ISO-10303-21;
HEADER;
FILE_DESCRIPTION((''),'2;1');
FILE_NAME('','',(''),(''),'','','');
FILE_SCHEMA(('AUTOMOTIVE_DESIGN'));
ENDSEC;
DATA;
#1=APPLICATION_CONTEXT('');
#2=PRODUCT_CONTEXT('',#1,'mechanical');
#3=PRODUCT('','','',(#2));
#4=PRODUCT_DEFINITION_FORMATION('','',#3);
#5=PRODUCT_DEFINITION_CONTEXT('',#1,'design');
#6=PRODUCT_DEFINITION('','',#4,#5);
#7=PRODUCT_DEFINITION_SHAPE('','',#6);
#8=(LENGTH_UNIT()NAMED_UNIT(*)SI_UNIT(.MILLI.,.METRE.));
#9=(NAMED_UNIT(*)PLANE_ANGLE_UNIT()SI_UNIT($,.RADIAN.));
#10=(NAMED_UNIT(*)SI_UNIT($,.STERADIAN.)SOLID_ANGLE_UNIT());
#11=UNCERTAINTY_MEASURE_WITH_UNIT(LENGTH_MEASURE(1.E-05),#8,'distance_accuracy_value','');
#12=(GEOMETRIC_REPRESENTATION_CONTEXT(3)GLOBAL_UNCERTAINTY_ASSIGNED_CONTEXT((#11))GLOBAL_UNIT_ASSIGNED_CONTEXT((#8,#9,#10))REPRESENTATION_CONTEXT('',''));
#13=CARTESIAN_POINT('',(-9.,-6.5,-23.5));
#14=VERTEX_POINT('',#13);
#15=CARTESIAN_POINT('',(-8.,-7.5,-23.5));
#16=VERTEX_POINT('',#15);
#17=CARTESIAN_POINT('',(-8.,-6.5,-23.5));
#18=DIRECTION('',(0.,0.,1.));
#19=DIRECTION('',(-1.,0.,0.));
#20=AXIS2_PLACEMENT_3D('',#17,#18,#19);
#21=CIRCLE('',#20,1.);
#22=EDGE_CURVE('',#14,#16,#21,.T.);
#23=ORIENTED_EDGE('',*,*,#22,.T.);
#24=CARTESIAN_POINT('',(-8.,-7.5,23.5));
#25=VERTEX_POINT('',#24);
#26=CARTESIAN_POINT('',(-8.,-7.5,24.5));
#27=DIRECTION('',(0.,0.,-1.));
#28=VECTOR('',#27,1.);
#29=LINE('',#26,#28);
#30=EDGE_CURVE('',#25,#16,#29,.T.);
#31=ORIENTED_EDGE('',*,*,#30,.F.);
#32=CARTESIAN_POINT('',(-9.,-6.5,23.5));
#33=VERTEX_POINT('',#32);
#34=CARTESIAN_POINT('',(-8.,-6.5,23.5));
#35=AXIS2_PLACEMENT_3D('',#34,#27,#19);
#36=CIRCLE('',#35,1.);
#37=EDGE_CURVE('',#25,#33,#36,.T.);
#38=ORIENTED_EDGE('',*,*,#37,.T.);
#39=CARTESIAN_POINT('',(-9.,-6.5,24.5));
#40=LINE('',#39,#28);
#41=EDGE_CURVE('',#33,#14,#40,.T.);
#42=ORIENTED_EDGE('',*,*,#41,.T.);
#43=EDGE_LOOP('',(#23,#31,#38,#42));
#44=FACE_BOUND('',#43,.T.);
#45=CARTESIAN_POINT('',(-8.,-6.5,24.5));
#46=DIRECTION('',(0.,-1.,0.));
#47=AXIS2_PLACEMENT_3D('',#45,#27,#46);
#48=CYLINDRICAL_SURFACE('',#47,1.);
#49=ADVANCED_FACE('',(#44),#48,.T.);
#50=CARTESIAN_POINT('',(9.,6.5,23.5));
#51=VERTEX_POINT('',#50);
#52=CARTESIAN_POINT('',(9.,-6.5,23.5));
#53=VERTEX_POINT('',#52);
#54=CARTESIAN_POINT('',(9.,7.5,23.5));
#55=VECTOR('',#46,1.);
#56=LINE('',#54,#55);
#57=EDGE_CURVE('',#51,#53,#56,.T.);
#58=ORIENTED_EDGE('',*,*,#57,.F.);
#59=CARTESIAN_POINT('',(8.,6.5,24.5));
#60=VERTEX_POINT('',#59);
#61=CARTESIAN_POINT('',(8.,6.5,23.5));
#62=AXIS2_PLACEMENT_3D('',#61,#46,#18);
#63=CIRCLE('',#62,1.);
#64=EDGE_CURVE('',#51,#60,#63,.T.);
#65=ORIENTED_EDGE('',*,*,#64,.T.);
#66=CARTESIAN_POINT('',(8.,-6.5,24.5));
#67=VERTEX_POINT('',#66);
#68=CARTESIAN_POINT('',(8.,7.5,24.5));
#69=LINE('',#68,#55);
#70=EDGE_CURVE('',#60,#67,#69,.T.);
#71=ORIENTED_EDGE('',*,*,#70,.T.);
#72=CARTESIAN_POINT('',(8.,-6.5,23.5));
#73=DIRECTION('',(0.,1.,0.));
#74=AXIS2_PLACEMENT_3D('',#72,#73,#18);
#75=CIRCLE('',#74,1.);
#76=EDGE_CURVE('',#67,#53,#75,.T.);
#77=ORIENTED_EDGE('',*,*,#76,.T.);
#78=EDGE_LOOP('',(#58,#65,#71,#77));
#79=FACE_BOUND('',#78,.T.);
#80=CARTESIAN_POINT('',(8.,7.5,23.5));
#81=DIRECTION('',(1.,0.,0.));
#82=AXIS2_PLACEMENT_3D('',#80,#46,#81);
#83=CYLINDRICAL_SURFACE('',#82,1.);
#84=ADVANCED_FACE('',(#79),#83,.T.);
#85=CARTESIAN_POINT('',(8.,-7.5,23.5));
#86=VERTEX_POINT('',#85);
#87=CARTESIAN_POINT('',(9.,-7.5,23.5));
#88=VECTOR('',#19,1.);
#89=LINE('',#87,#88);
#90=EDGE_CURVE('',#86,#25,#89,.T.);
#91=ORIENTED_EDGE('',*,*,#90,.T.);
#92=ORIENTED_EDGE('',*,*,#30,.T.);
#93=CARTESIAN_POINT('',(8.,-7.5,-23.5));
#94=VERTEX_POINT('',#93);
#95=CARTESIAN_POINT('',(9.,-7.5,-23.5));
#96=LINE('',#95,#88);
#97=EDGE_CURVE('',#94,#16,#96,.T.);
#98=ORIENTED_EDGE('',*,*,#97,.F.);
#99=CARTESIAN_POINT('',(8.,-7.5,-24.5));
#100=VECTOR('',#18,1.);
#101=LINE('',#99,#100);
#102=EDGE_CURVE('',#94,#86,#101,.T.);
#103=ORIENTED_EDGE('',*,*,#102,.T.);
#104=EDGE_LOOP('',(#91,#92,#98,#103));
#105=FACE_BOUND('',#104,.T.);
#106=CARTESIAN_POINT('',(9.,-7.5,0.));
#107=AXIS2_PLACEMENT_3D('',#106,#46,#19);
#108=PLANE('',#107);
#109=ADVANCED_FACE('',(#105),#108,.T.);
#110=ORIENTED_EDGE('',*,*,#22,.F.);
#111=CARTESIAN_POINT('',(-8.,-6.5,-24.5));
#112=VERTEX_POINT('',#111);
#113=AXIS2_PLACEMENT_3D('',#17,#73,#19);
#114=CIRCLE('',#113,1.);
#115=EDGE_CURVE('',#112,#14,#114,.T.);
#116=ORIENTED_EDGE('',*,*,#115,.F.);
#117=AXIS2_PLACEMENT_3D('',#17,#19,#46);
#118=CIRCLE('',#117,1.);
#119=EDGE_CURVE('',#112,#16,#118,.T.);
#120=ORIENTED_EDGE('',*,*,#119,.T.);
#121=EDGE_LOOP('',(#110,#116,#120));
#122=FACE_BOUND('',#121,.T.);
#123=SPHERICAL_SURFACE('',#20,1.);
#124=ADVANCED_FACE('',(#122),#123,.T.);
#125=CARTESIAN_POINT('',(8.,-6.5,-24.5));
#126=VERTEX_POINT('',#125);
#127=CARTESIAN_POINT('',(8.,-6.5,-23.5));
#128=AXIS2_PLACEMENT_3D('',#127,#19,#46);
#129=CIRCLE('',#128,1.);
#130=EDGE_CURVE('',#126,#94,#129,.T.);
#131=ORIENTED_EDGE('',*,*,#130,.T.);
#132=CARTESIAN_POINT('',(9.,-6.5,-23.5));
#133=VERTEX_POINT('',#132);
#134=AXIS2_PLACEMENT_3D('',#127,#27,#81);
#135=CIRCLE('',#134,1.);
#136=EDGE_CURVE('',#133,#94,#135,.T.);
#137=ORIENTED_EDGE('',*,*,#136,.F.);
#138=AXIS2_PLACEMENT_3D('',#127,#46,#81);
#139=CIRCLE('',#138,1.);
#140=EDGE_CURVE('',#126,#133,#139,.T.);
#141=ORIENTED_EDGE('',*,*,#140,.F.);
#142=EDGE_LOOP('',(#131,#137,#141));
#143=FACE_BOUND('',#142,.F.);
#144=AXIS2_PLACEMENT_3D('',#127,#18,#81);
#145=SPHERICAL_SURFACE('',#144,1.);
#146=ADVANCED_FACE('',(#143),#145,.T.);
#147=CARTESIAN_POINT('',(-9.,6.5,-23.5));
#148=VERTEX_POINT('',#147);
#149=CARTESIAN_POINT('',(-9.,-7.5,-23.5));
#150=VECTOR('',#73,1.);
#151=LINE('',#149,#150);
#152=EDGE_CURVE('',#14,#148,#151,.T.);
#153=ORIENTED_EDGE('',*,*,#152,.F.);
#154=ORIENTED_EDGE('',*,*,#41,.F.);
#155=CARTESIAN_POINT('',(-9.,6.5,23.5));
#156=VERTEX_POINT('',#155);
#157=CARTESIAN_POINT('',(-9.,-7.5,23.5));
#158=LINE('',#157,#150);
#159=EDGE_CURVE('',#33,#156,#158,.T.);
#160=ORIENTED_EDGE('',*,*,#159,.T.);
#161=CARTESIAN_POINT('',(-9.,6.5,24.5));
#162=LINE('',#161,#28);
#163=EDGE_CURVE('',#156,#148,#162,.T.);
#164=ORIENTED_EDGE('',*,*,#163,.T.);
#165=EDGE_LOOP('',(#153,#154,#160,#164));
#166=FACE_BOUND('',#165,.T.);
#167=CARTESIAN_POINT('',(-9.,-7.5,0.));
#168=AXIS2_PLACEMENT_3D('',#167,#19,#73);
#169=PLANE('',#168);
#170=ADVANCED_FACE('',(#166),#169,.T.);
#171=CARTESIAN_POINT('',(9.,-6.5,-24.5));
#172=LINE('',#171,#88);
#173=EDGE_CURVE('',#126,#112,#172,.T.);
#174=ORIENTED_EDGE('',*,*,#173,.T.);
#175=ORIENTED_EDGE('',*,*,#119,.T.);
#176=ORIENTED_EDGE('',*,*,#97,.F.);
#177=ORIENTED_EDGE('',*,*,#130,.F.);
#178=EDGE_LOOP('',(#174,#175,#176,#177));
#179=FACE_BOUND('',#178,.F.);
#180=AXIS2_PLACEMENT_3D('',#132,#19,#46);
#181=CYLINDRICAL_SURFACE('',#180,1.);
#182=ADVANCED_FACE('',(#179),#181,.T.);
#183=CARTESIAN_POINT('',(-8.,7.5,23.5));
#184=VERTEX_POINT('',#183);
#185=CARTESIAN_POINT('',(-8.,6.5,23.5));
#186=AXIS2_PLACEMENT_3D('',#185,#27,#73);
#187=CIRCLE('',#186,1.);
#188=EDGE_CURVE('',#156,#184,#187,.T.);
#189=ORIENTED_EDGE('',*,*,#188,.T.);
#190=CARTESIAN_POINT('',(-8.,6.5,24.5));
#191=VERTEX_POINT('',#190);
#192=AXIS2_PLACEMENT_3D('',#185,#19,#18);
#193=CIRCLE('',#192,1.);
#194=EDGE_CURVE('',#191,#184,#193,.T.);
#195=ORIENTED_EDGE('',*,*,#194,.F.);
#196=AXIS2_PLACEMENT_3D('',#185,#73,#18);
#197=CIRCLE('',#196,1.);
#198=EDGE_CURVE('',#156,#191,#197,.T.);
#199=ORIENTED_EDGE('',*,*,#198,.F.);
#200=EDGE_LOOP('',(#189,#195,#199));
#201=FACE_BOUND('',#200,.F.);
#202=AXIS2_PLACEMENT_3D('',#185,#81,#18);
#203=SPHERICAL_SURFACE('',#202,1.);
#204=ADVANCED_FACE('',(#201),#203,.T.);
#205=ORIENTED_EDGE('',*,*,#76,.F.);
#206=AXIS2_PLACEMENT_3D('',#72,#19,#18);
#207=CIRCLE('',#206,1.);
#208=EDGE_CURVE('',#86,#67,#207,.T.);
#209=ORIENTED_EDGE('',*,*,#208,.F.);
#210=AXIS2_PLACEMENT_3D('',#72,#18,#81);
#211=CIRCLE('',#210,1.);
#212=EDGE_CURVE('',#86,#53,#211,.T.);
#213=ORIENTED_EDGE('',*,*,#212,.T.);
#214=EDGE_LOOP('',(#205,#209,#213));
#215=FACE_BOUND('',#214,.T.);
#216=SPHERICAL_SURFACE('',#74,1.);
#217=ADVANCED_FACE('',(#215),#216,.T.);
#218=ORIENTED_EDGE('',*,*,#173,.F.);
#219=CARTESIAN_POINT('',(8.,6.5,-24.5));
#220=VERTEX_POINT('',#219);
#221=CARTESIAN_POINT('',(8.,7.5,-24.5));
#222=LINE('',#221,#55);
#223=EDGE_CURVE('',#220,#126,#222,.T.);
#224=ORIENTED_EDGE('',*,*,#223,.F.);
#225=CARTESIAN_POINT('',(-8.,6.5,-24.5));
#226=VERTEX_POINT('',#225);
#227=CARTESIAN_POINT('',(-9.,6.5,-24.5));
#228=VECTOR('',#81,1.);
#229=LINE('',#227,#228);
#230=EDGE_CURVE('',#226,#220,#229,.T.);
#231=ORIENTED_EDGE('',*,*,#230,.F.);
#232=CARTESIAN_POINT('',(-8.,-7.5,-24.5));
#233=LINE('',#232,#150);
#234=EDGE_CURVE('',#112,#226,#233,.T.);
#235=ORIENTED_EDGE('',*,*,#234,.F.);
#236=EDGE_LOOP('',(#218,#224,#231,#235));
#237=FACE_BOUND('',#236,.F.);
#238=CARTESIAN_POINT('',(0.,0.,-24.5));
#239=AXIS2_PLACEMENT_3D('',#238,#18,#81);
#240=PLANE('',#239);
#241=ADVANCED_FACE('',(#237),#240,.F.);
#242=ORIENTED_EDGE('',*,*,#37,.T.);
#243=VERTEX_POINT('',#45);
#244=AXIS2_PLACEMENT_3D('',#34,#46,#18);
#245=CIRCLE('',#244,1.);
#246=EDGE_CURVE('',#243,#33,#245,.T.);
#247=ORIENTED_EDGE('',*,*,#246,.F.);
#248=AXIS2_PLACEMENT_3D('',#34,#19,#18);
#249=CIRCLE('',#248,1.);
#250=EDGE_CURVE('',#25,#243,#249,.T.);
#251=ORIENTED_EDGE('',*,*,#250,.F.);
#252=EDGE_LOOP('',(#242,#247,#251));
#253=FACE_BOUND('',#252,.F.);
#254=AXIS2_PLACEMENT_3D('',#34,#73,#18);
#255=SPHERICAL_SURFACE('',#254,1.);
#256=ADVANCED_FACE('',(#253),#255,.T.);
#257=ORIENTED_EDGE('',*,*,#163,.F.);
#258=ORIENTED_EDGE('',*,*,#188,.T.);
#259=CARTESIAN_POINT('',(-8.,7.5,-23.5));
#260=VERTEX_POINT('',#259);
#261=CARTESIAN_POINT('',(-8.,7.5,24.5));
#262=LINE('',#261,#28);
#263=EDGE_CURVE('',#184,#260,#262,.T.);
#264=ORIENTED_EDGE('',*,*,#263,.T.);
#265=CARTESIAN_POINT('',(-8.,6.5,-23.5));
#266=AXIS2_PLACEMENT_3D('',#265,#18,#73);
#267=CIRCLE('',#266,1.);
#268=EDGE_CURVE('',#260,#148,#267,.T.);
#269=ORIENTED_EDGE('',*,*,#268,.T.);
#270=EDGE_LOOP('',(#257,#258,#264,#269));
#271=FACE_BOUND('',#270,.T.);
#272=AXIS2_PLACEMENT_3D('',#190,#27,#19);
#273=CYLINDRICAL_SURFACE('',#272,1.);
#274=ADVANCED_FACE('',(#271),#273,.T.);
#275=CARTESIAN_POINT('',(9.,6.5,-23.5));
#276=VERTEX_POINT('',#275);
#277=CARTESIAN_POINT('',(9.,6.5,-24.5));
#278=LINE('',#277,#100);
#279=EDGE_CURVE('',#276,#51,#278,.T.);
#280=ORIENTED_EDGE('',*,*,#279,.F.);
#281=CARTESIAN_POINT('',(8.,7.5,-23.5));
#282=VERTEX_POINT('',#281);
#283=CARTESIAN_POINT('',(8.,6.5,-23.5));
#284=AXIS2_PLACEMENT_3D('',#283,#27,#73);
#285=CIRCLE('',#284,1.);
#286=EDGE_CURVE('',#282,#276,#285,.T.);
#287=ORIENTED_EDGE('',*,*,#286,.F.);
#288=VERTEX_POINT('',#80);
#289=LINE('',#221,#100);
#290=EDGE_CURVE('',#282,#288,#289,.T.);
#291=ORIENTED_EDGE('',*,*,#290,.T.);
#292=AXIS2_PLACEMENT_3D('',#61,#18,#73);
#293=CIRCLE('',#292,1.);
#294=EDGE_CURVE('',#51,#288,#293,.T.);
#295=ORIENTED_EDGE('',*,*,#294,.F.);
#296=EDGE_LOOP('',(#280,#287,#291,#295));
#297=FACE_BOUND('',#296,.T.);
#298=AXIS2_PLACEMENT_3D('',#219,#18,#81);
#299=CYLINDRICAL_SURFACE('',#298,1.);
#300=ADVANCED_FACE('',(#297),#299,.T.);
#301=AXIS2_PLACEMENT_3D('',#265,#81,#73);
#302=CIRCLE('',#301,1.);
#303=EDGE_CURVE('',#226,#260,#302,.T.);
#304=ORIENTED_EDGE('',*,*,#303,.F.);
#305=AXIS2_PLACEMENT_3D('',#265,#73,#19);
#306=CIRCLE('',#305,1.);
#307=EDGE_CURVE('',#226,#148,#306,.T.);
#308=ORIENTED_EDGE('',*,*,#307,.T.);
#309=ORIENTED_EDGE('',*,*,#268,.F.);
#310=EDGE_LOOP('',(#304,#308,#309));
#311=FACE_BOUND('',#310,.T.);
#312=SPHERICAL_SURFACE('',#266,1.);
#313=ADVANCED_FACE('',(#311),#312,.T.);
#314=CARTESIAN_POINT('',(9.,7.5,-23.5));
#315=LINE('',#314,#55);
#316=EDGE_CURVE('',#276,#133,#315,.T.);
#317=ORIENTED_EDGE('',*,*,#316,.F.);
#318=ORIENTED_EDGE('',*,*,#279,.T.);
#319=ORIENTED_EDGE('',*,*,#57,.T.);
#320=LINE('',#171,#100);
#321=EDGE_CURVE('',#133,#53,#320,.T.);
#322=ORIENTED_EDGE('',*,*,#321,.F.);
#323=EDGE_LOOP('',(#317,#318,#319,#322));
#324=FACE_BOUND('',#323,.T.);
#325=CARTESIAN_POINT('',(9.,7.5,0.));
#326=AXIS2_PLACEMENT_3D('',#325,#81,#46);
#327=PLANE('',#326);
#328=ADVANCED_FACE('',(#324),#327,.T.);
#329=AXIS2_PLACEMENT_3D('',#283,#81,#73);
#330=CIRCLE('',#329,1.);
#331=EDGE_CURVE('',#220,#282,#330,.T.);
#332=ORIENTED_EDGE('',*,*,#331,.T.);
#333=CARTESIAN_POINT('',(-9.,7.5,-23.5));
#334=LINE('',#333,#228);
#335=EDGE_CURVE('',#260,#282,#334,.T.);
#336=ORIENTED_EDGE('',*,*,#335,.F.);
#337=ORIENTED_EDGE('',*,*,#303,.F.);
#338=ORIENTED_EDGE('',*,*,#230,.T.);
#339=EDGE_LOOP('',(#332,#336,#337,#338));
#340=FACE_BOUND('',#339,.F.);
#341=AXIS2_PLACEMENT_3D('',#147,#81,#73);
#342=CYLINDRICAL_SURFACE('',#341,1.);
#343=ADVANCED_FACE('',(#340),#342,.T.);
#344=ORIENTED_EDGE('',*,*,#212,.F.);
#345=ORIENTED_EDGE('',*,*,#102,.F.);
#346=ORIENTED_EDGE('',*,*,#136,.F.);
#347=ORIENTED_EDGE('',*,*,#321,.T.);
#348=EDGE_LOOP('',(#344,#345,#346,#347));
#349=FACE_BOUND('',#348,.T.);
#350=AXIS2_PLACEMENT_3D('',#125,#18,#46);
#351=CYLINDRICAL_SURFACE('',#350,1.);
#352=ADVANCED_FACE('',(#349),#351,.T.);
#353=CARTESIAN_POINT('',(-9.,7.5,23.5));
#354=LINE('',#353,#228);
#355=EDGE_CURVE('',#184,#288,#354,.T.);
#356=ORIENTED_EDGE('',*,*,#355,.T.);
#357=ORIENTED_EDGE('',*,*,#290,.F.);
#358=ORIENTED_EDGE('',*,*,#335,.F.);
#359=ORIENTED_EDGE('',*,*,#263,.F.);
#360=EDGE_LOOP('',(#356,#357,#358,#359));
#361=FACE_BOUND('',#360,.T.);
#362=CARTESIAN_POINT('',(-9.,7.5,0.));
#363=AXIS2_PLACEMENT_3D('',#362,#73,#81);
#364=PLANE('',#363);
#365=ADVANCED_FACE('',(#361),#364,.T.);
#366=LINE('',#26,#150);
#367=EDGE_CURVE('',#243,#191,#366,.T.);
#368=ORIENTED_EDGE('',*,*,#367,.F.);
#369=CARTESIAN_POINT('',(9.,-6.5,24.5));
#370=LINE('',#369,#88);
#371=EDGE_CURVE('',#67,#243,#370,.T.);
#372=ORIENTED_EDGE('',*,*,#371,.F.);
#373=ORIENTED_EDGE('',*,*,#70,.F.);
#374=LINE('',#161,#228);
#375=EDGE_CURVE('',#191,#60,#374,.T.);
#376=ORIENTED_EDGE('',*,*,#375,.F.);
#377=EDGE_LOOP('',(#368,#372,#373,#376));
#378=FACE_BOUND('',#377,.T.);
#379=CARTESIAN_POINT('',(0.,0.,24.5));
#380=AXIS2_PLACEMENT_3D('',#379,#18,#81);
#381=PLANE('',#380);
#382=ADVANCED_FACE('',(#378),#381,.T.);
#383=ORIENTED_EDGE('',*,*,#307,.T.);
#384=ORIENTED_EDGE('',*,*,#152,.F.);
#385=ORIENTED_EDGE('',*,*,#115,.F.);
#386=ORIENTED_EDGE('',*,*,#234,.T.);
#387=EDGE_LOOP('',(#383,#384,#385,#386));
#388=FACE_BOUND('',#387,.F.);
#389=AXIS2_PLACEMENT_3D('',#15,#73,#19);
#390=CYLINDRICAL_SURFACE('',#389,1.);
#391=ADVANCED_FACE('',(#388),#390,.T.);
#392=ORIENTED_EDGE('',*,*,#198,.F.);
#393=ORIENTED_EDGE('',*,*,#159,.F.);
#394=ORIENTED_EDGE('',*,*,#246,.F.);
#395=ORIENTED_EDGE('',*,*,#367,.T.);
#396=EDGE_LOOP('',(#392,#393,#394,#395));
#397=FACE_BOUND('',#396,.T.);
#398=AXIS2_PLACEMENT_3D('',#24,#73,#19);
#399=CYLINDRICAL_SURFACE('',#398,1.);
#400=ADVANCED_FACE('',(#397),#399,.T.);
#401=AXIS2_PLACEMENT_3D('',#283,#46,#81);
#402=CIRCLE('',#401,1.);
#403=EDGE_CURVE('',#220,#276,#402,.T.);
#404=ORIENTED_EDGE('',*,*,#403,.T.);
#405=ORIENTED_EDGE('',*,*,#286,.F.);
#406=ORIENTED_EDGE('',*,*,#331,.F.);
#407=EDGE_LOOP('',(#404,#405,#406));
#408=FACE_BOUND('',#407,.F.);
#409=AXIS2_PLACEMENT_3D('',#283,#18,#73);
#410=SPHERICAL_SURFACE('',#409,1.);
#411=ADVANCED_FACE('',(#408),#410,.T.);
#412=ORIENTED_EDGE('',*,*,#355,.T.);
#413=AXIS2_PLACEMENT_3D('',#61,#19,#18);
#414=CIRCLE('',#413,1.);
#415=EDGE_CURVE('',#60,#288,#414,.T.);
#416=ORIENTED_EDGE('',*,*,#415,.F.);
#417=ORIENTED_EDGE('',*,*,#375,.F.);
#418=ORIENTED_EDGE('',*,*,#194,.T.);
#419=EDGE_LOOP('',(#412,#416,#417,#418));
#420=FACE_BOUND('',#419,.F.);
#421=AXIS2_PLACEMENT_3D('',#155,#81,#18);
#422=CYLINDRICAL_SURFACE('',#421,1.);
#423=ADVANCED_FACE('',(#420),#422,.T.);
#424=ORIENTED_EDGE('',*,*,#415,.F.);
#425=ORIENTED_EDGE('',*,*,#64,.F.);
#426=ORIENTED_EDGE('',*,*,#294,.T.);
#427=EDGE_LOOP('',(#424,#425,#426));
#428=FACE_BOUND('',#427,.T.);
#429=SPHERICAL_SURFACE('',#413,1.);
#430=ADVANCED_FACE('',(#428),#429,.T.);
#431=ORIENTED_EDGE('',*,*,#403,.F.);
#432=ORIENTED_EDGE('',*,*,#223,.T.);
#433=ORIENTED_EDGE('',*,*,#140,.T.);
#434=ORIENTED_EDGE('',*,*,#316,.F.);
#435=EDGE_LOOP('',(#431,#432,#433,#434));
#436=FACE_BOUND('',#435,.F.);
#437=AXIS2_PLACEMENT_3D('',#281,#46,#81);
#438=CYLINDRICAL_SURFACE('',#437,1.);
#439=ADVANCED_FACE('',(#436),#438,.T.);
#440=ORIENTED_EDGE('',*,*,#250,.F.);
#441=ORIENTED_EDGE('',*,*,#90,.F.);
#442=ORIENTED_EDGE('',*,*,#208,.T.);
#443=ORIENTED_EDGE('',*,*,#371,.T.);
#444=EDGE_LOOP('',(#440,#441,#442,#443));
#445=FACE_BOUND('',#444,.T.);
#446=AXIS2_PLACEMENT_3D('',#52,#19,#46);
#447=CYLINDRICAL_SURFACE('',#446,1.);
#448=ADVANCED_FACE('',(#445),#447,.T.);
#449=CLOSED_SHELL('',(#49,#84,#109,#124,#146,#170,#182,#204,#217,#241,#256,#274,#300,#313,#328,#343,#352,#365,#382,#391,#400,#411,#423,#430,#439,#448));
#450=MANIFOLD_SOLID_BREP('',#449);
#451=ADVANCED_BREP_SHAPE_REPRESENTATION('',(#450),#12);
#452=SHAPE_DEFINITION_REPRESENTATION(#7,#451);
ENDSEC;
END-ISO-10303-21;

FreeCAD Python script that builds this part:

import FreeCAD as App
import Part
import Sketcher

V = App.Vector
Q = App.Units.Quantity


def add_polygon(sketch, points):
    """Adds a closed chain of lines whose ends are joined by coincident constraints."""
    first, n = sketch.GeometryCount, len(points)
    for a, b in zip(points, points[1:] + points[:1]):
        sketch.addGeometry(Part.LineSegment(App.Vector(*a, 0), App.Vector(*b, 0)), False)
    for i in range(n):
        sketch.addConstraint(Sketcher.Constraint("Coincident", first + i, 2, first + (i + 1) % n, 1))

doc = App.newDocument("Part")
body = doc.addObject("PartDesign::Body", "Body")

# Sketch on XY plane
sketch1 = body.newObject("Sketcher::SketchObject", "Sketch")
sketch1.AttachmentSupport = (doc.getObject("XY_Plane"), [""])
sketch1.MapMode = "FlatFace"
add_polygon(sketch1, [(-9, -8), (9, -8), (9, 8), (-9, 8)])  # lines 0-3
sketch1.addConstraint(Sketcher.Constraint("Horizontal", 0))
sketch1.addConstraint(Sketcher.Constraint("Vertical", 1))
sketch1.addConstraint(Sketcher.Constraint("Horizontal", 2))
sketch1.addConstraint(Sketcher.Constraint("Vertical", 3))
sketch1.addConstraint(Sketcher.Constraint("Symmetric", 0, 2, 2, 2, -1, 1))
sketch1.addConstraint(Sketcher.Constraint("DistanceX", 0, 1, 0, 2, Q("18 mm")))
sketch1.addConstraint(Sketcher.Constraint("DistanceY", 1, 1, 1, 2, Q("15 mm")))
pad1 = body.newObject("PartDesign::Pad", "Pad")
pad1.Profile = sketch1
pad1.Length = 49
pad1.Midplane = True
doc.recompute()

fillet = body.newObject("PartDesign::Fillet", "Fillet")
fillet.Base = (pad1, ["Edge1"])
fillet.UseAllEdges = True
fillet.Radius = 1

doc.recompute()
